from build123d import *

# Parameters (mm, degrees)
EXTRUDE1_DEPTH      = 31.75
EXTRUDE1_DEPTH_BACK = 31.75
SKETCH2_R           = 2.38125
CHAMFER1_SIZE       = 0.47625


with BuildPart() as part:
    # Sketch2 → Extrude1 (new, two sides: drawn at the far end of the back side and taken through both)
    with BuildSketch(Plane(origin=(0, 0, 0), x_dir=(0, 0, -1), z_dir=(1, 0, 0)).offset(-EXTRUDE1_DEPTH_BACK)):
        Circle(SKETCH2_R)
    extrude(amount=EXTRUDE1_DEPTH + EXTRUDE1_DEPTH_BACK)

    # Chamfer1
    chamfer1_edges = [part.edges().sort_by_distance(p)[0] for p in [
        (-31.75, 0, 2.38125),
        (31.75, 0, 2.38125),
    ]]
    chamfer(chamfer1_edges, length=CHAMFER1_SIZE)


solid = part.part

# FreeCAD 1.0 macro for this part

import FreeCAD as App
import Part
import Sketcher
Q = App.Units.Quantity


def edges_at(feature, points):
    """Names of the edges that pass closest to the given points."""
    edges = feature.Shape.Edges
    near = lambda p: min(range(len(edges)), key=lambda i: edges[i].distToShape(Part.Vertex(*p))[0])
    return sorted({f"Edge{near(p) + 1}" for p in points})

doc = App.newDocument("Part")
params = doc.addObject("Spreadsheet::Sheet", "Params")
for row, (alias, value) in enumerate([
    ("sketch1_diameter", "0.1875 in"),
    ("pad1_length", "1.25 in"),
    ("pad1_length2", "1.25 in"),
    ("chamfer_size", "0.47625 mm"),
], start=1):
    params.set(f"A{row}", alias)
    params.set(f"B{row}", "=" + value)
    params.setAlias(f"B{row}", alias)

body = doc.addObject("PartDesign::Body", "Body")

sketch1 = doc.addObject("Sketcher::SketchObject", "Sketch")
body.addObject(sketch1)
sketch1.AttachmentSupport = (doc.YZ_Plane, [""])
sketch1.MapMode = "FlatFace"
sketch1.addGeometry(Part.Circle(App.Vector(0, 0, 0), App.Vector(0, 0, 1), 2.38125), False)
sketch1.addConstraint([
    Sketcher.Constraint("Coincident", 0, 3, -1, 1),
    Sketcher.Constraint("Diameter", 0, Q("0.1875 in")),
])
sketch1.setExpression("Constraints[1]", "Params.sketch1_diameter")
pad1 = doc.addObject("PartDesign::Pad", "Pad")
body.addObject(pad1)
pad1.Profile = sketch1
pad1.Type = "TwoLengths"
pad1.setExpression("Length", "Params.pad1_length")
pad1.setExpression("Length2", "Params.pad1_length2")
doc.recompute()

chamfer = doc.addObject("PartDesign::Chamfer", "Chamfer")
body.addObject(chamfer)
chamfer.Base = (pad1, edges_at(pad1, [(-31.75, 0, 2.381), (31.75, 0, 2.381)]))
chamfer.setExpression("Size", "Params.chamfer_size")

doc.recompute()
